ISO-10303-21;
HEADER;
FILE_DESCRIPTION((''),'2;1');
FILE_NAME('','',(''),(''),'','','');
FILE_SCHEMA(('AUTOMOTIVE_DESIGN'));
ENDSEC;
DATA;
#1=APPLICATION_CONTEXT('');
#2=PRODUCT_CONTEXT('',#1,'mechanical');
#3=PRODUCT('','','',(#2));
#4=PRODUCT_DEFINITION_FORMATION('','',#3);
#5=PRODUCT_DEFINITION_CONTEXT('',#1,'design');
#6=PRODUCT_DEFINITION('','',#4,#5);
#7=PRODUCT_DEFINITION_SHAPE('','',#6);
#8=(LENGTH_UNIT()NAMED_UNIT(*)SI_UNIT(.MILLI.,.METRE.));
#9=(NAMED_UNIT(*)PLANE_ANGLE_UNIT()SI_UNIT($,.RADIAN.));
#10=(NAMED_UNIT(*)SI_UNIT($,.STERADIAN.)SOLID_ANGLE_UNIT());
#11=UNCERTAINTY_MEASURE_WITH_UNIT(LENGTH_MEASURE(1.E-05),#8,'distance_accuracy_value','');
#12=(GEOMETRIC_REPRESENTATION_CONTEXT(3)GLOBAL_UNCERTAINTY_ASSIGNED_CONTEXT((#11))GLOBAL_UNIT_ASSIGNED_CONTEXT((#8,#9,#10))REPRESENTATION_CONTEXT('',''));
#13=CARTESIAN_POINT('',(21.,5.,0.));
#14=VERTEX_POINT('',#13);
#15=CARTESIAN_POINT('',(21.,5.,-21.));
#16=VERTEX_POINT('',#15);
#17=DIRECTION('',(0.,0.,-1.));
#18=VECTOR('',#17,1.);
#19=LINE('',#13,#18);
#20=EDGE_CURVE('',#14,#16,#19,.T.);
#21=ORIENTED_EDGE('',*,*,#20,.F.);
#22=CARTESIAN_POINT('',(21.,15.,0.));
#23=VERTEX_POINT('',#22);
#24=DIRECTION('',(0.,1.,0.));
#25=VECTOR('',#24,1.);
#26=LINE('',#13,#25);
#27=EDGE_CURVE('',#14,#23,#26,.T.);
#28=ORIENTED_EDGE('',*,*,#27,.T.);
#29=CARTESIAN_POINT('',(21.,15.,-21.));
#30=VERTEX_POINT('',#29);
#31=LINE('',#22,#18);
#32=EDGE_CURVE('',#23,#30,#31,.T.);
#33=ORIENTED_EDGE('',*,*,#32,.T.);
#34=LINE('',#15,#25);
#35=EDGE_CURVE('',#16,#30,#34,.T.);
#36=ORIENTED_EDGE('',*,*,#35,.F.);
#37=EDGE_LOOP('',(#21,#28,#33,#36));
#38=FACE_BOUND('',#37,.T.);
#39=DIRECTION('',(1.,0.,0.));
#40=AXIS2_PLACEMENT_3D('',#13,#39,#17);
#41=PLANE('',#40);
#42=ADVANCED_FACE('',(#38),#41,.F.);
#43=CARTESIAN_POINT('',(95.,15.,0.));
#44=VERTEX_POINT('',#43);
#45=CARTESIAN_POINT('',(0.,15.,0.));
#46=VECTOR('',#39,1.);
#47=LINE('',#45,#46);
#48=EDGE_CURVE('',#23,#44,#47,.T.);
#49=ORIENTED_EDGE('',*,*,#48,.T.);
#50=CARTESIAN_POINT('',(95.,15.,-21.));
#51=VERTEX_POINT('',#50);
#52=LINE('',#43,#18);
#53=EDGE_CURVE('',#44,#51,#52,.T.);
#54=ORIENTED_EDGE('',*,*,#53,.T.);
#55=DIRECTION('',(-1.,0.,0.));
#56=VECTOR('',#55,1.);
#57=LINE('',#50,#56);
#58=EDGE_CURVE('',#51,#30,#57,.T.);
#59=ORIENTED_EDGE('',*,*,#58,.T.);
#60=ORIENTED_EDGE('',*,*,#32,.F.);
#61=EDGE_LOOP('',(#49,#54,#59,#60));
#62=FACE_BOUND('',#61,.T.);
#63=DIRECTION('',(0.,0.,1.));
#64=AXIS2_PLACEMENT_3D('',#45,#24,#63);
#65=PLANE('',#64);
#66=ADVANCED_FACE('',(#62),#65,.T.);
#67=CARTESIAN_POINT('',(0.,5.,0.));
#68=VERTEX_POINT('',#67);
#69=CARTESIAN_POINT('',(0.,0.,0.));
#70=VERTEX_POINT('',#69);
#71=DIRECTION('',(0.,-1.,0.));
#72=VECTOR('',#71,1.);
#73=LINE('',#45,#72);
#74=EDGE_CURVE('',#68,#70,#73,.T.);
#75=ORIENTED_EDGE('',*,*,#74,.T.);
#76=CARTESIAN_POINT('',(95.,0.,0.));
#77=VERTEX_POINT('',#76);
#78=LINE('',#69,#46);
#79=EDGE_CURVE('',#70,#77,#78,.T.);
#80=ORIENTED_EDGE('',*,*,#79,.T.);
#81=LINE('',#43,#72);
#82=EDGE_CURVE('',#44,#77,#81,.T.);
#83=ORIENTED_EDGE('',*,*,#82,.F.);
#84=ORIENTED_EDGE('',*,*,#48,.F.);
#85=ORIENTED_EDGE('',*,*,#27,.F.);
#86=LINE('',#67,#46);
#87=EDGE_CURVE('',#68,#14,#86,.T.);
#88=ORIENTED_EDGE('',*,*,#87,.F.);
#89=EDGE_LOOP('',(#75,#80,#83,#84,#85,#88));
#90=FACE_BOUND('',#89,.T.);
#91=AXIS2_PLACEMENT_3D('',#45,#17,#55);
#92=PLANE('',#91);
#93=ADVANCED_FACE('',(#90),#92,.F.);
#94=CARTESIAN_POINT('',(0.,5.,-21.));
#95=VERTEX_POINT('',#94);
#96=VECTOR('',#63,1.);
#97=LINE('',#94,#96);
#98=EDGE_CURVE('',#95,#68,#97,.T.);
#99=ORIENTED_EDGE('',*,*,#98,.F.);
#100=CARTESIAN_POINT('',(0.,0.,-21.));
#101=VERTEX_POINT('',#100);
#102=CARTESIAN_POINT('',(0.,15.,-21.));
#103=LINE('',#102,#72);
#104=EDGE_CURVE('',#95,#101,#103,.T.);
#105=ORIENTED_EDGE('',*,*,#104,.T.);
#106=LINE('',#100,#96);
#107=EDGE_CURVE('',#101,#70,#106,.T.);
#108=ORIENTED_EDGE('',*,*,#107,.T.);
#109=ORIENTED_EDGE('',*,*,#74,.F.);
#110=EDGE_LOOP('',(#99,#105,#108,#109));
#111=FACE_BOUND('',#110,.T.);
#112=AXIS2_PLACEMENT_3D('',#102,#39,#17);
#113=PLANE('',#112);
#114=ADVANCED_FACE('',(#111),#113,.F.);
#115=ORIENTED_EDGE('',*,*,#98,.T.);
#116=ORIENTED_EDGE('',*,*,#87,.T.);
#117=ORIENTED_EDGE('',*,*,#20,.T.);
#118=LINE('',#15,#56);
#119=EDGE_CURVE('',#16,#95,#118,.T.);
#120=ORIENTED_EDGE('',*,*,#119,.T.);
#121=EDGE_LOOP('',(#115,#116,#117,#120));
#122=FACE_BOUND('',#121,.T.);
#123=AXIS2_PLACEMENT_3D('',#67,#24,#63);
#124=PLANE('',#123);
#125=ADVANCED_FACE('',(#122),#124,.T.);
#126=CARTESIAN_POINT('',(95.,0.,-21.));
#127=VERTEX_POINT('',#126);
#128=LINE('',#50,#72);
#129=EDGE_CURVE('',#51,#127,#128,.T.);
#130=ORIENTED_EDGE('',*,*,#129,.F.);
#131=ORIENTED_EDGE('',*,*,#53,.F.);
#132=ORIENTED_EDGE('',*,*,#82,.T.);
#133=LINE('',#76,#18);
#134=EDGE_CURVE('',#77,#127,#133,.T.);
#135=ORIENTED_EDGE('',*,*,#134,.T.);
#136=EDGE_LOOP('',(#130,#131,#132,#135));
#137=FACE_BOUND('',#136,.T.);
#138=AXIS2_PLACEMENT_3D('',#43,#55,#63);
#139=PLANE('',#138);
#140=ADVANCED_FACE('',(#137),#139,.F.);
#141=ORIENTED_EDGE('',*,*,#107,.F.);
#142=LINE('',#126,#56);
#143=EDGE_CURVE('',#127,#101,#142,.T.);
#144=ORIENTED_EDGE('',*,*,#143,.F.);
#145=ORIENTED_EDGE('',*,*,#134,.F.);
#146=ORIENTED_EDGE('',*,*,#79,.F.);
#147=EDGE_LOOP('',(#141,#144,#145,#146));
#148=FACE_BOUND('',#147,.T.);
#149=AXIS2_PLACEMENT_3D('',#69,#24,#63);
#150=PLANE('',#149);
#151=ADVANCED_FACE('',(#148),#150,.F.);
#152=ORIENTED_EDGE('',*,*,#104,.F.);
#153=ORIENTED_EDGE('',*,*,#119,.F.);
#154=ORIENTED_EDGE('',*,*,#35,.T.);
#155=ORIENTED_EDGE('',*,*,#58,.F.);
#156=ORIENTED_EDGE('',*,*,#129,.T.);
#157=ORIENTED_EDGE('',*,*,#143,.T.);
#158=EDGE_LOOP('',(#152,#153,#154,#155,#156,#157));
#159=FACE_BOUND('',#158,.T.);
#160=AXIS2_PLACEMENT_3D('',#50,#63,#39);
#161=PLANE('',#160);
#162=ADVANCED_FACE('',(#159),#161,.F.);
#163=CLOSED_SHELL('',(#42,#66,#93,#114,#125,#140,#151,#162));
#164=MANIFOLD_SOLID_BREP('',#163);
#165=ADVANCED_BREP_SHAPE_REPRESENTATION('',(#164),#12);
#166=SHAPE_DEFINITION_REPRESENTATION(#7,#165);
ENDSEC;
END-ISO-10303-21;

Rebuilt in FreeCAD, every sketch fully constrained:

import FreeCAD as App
import Part
import Sketcher
from FreeCAD import Vector


def add_polygon(sketch, points):
    """Adds a closed chain of lines whose ends are joined by coincident constraints."""
    first, n = sketch.GeometryCount, len(points)
    for a, b in zip(points, points[1:] + points[:1]):
        sketch.addGeometry(Part.LineSegment(App.Vector(*a, 0), App.Vector(*b, 0)), False)
    for i in range(n):
        sketch.addConstraint(Sketcher.Constraint("Coincident", first + i, 2, first + (i + 1) % n, 1))

doc = App.newDocument("Part")
params = doc.addObject("Spreadsheet::Sheet", "Params")
for row, (alias, value) in enumerate([
    ("sketch1_width", "95 mm"),
    ("sketch1_height", "21 mm"),
    ("pad1_length", "15 mm"),
    ("sketch2_width", "21 mm"),
    ("pocket1_length", "10 mm"),
], start=1):
    params.set(f"A{row}", alias)
    params.set(f"B{row}", "=" + value)
    params.setAlias(f"B{row}", alias)

body = doc.addObject("PartDesign::Body", "Body")

# Sketch on XZ plane
sketch1 = doc.addObject("Sketcher::SketchObject", "Sketch")
body.addObject(sketch1)
sketch1.AttachmentSupport = (doc.XZ_Plane, [""])
sketch1.MapMode = "FlatFace"
add_polygon(sketch1, [(0, -21), (0, 0), (95, 0), (95, -21)])  # lines 0-3
sketch1.addConstraint([
    Sketcher.Constraint("Vertical", 0),
    Sketcher.Constraint("Horizontal", 1),
    Sketcher.Constraint("Vertical", 2),
    Sketcher.Constraint("Horizontal", 3),
    Sketcher.Constraint("Coincident", 0, 2, -1, 1),
    Sketcher.Constraint("DistanceX", 1, 1, 1, 2, 95.0),
    Sketcher.Constraint("DistanceY", 0, 1, 0, 2, 21.0),
])
sketch1.setExpression("Constraints[9]", "Params.sketch1_width")
sketch1.setExpression("Constraints[10]", "Params.sketch1_height")
pad1 = doc.addObject("PartDesign::Pad", "Pad")
body.addObject(pad1)
pad1.Profile = sketch1
pad1.setExpression("Length", "Params.pad1_length")
pad1.Reversed = True

# Sketch on XZ plane
sketch2 = doc.addObject("Sketcher::SketchObject", "Sketch001")
body.addObject(sketch2)
sketch2.AttachmentSupport = (doc.XZ_Plane, [""])
sketch2.MapMode = "FlatFace"
sketch2.AttachmentOffset = App.Placement(Vector(0, 0, -15), App.Rotation())
add_polygon(sketch2, [(0, -21), (0, 0), (21, 0), (21, -21)])  # lines 0-3
sketch2.addConstraint([
    Sketcher.Constraint("Vertical", 0),
    Sketcher.Constraint("Horizontal", 1),
    Sketcher.Constraint("Vertical", 2),
    Sketcher.Constraint("Horizontal", 3),
    Sketcher.Constraint("Coincident", 0, 2, -1, 1),
    Sketcher.Constraint("Equal", 3, 0),
    Sketcher.Constraint("DistanceX", 1, 1, 1, 2, 21.0),
])
sketch2.setExpression("Constraints[10]", "Params.sketch2_width")
pocket1 = doc.addObject("PartDesign::Pocket", "Pocket")
body.addObject(pocket1)
pocket1.Profile = sketch2
pocket1.setExpression("Length", "Params.pocket1_length")
pocket1.Reversed = True

doc.recompute()
